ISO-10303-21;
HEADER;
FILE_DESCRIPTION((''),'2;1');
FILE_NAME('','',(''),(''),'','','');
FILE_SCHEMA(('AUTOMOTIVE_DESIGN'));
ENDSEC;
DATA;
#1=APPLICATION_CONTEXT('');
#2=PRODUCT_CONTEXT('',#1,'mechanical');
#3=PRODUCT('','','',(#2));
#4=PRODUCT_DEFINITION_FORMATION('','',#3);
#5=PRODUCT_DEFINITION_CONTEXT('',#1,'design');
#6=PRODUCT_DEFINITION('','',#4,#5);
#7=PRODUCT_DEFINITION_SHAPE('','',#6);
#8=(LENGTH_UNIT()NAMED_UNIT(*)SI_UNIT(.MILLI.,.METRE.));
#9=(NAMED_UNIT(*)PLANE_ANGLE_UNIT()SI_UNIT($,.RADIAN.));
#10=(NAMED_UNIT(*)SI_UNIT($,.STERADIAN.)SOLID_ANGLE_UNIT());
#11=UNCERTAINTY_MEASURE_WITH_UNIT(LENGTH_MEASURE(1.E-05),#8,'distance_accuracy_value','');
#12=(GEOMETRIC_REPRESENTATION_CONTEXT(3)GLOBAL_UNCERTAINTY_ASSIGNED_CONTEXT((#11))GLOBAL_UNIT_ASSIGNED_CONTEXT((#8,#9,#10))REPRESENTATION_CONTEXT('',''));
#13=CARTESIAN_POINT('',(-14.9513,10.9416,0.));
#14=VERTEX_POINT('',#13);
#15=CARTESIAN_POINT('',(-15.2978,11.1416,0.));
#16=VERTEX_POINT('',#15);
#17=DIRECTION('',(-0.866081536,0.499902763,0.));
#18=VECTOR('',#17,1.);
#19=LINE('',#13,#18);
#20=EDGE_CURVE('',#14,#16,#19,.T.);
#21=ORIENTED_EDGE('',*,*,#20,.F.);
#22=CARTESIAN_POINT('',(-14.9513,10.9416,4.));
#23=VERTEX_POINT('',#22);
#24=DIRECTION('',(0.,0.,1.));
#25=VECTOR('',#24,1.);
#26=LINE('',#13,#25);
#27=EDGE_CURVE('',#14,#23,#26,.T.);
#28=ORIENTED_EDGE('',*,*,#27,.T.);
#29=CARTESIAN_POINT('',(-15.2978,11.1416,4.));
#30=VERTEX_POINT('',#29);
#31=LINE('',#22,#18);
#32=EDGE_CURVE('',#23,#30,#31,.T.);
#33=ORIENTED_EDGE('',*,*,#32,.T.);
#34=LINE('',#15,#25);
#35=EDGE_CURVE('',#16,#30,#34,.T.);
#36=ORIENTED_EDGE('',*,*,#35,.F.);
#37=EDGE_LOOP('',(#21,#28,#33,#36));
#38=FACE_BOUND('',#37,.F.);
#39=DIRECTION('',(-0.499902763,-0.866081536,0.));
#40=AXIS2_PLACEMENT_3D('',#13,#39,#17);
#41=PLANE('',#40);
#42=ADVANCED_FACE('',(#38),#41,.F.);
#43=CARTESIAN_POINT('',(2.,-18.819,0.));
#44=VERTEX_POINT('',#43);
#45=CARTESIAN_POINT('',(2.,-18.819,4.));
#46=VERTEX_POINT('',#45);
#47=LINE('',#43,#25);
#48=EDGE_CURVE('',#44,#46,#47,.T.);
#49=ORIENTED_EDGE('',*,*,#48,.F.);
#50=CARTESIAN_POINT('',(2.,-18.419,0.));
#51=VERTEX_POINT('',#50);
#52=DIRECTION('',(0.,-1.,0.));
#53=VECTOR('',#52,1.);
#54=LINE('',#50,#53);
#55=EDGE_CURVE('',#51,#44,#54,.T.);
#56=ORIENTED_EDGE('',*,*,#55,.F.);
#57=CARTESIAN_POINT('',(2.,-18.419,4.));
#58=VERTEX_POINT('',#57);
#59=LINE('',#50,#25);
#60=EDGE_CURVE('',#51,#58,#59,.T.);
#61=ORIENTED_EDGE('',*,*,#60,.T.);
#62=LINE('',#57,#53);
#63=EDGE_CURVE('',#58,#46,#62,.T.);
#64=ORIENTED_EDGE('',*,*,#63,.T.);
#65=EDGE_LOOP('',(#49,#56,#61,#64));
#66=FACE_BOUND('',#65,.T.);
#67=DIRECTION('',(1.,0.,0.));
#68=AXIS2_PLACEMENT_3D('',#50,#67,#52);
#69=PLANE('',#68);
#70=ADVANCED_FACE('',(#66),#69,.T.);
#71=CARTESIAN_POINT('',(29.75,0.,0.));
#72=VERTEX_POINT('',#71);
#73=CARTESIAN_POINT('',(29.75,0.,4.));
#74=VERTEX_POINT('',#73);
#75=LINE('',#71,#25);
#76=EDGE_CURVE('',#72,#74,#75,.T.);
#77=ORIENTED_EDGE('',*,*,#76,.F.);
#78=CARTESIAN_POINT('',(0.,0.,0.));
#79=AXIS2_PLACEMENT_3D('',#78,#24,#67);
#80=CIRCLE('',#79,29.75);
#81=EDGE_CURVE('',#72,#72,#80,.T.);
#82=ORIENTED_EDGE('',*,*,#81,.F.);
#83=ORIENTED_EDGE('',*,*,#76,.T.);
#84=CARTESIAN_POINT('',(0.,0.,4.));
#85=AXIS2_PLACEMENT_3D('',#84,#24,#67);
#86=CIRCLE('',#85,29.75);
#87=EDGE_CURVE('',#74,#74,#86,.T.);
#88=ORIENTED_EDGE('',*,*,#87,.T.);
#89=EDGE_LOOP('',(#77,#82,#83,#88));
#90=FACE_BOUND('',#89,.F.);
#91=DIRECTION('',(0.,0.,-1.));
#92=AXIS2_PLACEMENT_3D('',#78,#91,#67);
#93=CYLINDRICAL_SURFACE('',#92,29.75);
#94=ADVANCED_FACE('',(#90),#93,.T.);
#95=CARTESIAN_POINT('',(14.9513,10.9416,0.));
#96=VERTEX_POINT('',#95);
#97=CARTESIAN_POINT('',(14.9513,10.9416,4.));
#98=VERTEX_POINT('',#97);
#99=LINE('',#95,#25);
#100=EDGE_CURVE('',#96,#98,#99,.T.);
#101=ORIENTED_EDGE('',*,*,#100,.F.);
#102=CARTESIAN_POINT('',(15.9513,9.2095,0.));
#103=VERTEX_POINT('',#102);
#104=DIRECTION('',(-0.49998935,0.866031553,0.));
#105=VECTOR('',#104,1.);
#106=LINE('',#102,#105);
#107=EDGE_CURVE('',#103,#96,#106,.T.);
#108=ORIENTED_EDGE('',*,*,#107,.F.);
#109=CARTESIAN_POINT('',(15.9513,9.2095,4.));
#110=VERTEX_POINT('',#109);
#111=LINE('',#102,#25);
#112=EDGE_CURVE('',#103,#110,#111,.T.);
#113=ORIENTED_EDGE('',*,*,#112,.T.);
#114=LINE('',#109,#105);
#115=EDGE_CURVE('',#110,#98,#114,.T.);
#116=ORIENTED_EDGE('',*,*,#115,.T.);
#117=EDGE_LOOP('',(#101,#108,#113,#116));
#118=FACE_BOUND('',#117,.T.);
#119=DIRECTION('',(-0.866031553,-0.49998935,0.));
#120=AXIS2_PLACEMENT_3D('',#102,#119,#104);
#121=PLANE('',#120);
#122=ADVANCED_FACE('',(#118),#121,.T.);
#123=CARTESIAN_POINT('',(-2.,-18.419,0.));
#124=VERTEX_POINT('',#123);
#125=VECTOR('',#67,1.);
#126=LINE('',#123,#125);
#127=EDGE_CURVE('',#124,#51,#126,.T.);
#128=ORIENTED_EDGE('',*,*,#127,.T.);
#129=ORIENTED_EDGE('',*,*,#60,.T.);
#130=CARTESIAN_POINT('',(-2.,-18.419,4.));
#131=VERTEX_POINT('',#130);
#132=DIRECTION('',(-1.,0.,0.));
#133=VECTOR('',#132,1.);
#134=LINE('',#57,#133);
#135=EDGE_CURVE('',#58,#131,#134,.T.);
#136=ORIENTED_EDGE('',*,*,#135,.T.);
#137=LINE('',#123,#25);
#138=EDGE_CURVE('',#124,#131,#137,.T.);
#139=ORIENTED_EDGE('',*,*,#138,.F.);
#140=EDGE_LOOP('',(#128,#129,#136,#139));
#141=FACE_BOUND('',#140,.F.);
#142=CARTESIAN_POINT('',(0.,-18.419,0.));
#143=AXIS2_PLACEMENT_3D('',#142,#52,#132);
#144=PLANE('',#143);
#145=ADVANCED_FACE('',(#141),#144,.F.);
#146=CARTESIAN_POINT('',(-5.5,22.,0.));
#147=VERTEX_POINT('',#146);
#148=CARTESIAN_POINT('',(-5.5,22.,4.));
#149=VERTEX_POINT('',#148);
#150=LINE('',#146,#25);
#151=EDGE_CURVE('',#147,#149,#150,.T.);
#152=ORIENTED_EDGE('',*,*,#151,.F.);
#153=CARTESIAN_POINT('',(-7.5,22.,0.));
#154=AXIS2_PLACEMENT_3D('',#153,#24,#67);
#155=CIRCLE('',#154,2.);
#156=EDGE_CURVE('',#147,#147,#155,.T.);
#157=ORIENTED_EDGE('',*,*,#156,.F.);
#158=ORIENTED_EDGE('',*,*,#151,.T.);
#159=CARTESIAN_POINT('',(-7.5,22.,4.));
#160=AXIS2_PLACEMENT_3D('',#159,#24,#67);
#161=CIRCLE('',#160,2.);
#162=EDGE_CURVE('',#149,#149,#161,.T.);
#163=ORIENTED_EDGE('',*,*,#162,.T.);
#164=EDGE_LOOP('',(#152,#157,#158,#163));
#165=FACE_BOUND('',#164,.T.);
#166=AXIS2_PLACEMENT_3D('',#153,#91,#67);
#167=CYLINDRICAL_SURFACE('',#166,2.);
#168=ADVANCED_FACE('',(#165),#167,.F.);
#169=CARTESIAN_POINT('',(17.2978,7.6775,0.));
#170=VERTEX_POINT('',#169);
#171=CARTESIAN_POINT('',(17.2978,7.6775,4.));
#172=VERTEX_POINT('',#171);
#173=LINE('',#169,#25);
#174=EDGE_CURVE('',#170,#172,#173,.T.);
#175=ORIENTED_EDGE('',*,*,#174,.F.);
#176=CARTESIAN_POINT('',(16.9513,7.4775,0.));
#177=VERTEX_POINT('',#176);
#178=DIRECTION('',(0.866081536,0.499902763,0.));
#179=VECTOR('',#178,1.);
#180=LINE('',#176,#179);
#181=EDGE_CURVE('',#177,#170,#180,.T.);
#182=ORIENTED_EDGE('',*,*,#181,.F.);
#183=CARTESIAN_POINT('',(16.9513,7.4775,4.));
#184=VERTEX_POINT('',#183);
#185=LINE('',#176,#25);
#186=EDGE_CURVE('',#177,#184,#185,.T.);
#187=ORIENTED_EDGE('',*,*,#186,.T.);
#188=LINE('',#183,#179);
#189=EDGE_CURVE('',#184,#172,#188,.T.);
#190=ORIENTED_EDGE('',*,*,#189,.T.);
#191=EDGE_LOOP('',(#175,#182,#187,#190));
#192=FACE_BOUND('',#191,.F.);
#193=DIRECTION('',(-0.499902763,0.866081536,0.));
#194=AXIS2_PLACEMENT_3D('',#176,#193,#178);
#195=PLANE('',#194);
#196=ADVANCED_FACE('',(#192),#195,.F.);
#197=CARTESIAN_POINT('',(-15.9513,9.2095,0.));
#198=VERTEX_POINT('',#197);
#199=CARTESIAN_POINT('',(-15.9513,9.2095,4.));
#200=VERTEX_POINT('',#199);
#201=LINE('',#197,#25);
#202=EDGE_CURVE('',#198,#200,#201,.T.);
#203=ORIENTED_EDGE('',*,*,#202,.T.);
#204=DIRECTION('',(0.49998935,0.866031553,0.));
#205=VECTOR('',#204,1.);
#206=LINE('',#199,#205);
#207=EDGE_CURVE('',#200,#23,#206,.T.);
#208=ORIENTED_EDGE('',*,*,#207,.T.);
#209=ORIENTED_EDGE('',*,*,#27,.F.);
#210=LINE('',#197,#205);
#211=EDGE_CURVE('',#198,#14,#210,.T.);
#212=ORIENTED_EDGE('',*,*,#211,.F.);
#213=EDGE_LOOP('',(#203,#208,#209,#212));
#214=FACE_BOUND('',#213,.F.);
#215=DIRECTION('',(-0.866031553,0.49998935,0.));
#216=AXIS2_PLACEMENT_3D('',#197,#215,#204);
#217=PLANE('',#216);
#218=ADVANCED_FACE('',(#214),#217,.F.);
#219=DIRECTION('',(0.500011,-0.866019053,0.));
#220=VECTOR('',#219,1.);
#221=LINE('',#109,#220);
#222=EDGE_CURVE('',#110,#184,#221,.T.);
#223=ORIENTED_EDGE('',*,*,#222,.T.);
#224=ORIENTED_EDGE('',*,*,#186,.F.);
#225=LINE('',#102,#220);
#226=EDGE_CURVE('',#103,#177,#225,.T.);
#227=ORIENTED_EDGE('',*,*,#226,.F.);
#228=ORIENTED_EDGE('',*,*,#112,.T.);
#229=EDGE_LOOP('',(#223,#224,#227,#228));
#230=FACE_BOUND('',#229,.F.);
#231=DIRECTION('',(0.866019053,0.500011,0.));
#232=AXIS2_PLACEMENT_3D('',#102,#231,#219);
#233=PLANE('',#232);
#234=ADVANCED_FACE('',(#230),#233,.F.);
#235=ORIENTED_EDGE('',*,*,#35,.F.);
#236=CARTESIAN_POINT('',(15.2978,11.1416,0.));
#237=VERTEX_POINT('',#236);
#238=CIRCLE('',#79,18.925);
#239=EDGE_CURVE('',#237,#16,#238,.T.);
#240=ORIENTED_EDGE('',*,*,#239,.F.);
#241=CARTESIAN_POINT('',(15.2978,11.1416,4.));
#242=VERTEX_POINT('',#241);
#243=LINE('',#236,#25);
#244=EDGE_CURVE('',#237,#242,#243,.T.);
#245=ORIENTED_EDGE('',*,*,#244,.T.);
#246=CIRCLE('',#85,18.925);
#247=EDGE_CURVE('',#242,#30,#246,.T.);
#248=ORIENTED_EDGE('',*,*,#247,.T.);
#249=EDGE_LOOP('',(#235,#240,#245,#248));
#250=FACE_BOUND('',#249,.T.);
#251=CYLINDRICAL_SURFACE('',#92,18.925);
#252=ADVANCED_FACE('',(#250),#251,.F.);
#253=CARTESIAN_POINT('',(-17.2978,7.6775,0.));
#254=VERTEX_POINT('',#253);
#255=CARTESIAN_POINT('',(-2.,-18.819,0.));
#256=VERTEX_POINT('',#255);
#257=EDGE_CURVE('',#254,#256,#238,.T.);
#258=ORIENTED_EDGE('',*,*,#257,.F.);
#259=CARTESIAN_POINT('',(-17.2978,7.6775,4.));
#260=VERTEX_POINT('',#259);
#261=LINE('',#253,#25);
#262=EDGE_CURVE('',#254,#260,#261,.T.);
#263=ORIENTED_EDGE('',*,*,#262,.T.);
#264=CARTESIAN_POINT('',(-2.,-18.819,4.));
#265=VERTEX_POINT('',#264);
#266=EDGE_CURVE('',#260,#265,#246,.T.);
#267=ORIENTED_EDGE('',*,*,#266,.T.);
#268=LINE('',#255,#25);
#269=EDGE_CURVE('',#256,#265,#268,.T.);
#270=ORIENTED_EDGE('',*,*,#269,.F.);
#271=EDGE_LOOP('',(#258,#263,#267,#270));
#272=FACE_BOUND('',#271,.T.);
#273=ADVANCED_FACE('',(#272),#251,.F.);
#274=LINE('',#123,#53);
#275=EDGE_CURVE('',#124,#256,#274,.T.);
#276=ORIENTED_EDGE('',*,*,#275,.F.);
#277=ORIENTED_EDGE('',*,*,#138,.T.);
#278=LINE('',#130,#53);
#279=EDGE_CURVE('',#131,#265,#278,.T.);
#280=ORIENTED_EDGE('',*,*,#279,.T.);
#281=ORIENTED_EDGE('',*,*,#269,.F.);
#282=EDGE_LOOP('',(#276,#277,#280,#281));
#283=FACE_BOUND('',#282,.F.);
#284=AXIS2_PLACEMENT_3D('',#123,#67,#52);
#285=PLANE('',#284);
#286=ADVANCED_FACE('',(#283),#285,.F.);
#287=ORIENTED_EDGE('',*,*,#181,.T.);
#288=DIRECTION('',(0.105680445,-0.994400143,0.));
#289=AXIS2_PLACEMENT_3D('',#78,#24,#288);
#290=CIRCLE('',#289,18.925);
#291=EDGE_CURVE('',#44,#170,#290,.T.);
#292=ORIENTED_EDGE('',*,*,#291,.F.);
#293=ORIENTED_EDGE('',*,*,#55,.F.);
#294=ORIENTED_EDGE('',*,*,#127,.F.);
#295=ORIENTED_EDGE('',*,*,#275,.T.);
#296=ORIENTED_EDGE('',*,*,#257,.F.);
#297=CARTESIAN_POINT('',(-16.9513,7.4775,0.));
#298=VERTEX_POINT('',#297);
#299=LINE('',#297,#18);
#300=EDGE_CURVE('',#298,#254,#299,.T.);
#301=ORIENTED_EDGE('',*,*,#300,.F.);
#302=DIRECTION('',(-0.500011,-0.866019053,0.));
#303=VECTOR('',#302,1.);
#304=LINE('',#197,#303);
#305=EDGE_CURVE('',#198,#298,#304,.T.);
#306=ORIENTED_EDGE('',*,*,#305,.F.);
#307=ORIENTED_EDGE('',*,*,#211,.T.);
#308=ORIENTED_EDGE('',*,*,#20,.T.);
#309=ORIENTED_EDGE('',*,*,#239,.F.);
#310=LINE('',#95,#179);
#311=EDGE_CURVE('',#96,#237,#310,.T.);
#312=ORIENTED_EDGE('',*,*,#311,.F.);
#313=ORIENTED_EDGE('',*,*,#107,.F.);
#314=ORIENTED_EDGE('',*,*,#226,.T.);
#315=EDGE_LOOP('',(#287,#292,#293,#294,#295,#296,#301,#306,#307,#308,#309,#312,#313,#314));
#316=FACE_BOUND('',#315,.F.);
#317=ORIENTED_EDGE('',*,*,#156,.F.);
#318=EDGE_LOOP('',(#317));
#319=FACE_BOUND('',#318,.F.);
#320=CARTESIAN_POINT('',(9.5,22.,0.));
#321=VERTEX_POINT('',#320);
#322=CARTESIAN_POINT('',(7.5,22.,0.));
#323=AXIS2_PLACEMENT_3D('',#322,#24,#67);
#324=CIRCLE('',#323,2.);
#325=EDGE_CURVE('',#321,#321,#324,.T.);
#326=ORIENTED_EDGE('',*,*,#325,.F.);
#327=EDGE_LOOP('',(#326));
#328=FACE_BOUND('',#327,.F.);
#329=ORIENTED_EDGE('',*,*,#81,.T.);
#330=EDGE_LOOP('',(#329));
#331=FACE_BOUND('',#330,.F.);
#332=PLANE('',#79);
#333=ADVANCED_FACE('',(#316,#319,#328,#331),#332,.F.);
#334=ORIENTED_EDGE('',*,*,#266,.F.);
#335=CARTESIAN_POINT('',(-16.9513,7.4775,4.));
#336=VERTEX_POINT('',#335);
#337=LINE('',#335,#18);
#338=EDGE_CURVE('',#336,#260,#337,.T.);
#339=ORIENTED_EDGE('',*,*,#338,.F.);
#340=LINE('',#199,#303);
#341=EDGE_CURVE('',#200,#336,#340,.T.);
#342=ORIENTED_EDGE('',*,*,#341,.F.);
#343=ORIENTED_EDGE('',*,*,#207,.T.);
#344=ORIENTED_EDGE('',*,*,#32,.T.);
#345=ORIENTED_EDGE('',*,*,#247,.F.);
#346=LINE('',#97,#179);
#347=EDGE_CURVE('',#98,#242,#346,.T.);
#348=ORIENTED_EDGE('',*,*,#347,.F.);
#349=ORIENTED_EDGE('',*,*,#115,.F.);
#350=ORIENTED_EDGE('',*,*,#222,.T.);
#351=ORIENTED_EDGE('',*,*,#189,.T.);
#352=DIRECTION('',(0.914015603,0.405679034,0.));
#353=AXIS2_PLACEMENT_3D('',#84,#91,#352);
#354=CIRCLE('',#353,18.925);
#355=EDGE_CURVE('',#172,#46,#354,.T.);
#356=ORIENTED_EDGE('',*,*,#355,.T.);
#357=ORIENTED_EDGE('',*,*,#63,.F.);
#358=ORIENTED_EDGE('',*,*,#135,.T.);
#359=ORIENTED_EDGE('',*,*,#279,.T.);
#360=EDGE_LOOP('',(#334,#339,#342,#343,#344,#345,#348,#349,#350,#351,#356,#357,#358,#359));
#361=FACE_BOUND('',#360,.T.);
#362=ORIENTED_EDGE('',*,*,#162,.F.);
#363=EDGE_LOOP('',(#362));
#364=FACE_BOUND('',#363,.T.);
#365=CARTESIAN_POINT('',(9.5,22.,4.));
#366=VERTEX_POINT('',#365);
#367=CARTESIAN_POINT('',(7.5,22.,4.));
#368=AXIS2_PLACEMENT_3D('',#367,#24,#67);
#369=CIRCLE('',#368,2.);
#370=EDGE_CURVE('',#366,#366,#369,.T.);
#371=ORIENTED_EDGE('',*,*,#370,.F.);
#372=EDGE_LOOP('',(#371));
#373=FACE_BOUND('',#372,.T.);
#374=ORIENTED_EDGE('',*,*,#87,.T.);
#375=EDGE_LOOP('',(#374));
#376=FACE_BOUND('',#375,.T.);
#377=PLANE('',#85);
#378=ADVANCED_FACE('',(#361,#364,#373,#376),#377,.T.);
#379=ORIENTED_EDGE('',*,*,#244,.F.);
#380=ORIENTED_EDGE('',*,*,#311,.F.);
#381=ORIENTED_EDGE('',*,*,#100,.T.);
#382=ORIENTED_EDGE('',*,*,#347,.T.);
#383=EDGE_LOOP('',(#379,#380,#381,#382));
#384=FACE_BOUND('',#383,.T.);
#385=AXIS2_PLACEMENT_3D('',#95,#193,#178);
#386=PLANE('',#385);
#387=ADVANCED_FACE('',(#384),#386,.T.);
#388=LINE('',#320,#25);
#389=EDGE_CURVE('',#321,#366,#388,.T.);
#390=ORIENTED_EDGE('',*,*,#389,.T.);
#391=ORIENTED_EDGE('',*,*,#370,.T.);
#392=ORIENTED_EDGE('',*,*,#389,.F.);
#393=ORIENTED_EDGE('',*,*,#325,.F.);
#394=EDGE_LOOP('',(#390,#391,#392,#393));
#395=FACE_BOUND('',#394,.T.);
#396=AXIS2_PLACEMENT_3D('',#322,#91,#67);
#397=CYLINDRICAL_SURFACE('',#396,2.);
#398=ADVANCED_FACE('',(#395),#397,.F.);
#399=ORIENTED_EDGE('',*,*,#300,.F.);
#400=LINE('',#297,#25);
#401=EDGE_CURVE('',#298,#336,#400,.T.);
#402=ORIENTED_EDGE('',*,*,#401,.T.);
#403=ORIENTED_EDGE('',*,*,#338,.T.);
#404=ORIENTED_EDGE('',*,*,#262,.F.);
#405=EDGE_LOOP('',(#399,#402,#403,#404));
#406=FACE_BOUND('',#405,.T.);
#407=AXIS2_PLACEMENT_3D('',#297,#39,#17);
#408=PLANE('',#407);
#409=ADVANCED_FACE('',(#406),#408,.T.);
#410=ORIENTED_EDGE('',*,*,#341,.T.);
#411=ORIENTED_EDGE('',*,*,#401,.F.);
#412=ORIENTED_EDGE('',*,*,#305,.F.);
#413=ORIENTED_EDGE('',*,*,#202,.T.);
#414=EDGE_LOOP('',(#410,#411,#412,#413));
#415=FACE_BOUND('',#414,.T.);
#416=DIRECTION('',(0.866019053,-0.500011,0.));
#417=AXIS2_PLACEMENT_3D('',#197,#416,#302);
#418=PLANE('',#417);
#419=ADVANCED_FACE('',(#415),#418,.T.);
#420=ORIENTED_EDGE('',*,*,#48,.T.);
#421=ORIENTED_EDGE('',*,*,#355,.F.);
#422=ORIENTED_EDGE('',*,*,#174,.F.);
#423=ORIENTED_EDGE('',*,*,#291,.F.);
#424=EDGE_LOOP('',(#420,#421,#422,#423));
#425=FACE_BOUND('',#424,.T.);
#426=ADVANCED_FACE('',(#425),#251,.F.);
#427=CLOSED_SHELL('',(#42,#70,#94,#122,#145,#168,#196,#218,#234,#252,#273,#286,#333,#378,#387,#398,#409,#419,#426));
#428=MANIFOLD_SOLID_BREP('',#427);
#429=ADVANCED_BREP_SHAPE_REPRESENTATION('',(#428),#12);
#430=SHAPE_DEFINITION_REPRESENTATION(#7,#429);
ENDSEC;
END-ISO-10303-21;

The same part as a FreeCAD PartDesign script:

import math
import FreeCAD as App
import Part
import Sketcher

V = App.Vector

doc = App.newDocument("Part")
body = doc.addObject("PartDesign::Body", "Body")

# Sketch on XY plane
sketch1 = body.newObject("Sketcher::SketchObject", "Sketch")
sketch1.AttachmentSupport = (doc.getObject("XY_Plane"), [""])
sketch1.MapMode = "FlatFace"
sketch1.addGeometry(Part.Circle(V(0, 0, 0), V(0, 0, 1), 29.75), False)
sketch1.addGeometry(Part.ArcOfCircle(Part.Circle(V(0, 0, 0), V(0, 0, 1), 18.93), math.radians(-84), math.radians(24)), False)
sketch1.addGeometry(Part.LineSegment(V(2, -18.82, 0), V(2, -18.42, 0)), False)
sketch1.addGeometry(Part.LineSegment(V(2, -18.42, 0), V(-2, -18.42, 0)), False)
sketch1.addGeometry(Part.LineSegment(V(-2, -18.42, 0), V(-2, -18.82, 0)), False)
sketch1.addGeometry(Part.ArcOfCircle(Part.Circle(V(0, 0, 0), V(0, 0, 1), 18.93), math.radians(156), math.radians(264)), False)
sketch1.addGeometry(Part.LineSegment(V(-17.3, 7.68, 0), V(-16.95, 7.48, 0)), False)
sketch1.addGeometry(Part.LineSegment(V(-16.95, 7.48, 0), V(-15.95, 9.21, 0)), False)
sketch1.addGeometry(Part.LineSegment(V(-15.95, 9.21, 0), V(-14.95, 10.94, 0)), False)
sketch1.addGeometry(Part.LineSegment(V(-14.95, 10.94, 0), V(-15.3, 11.14, 0)), False)
sketch1.addGeometry(Part.ArcOfCircle(Part.Circle(V(0, 0, 0), V(0, 0, 1), 18.93), math.radians(36), math.radians(144)), False)
sketch1.addGeometry(Part.LineSegment(V(15.3, 11.14, 0), V(14.95, 10.94, 0)), False)
sketch1.addGeometry(Part.LineSegment(V(14.95, 10.94, 0), V(15.95, 9.21, 0)), False)
sketch1.addGeometry(Part.LineSegment(V(15.95, 9.21, 0), V(16.95, 7.48, 0)), False)
sketch1.addGeometry(Part.LineSegment(V(16.95, 7.48, 0), V(17.3, 7.68, 0)), False)
sketch1.addConstraint(Sketcher.Constraint("Coincident", 1, 1, 2, 1))
sketch1.addConstraint(Sketcher.Constraint("Coincident", 2, 2, 3, 1))
sketch1.addConstraint(Sketcher.Constraint("Coincident", 3, 2, 4, 1))
sketch1.addConstraint(Sketcher.Constraint("Coincident", 4, 2, 5, 2))
sketch1.addConstraint(Sketcher.Constraint("Coincident", 5, 1, 6, 1))
sketch1.addConstraint(Sketcher.Constraint("Coincident", 6, 2, 7, 1))
sketch1.addConstraint(Sketcher.Constraint("Coincident", 7, 2, 8, 1))
sketch1.addConstraint(Sketcher.Constraint("Coincident", 8, 2, 9, 1))
sketch1.addConstraint(Sketcher.Constraint("Coincident", 9, 2, 10, 2))
sketch1.addConstraint(Sketcher.Constraint("Coincident", 10, 1, 11, 1))
sketch1.addConstraint(Sketcher.Constraint("Coincident", 11, 2, 12, 1))
sketch1.addConstraint(Sketcher.Constraint("Coincident", 12, 2, 13, 1))
sketch1.addConstraint(Sketcher.Constraint("Coincident", 13, 2, 14, 1))
sketch1.addConstraint(Sketcher.Constraint("Coincident", 14, 2, 1, 2))
sketch1.addConstraint(Sketcher.Constraint("Vertical", 2))
sketch1.addConstraint(Sketcher.Constraint("Horizontal", 3))
sketch1.addConstraint(Sketcher.Constraint("Vertical", 4))
sketch1.addConstraint(Sketcher.Constraint("Coincident", 0, 3, -1, 1))
sketch1.addConstraint(Sketcher.Constraint("Coincident", 1, 3, -1, 1))
sketch1.addConstraint(Sketcher.Constraint("Coincident", 5, 3, -1, 1))
sketch1.addConstraint(Sketcher.Constraint("Coincident", 10, 3, -1, 1))
sketch1.addConstraint(Sketcher.Constraint("Equal", 1, 5))
sketch1.addConstraint(Sketcher.Constraint("Equal", 5, 10))
sketch1.addConstraint(Sketcher.Constraint("Symmetric", 8, 2, 11, 2, -2))
sketch1.addConstraint(Sketcher.Constraint("Symmetric", 7, 2, 12, 2, -2))
sketch1.addConstraint(Sketcher.Constraint("Symmetric", 6, 2, 13, 2, -2))
sketch1.addConstraint(Sketcher.Constraint("Perpendicular", 6, 7))
sketch1.addConstraint(Sketcher.Constraint("Parallel", 7, 8))
sketch1.addConstraint(Sketcher.Constraint("Perpendicular", 8, 9))
sketch1.addConstraint(Sketcher.Constraint("Perpendicular", 11, 12))
sketch1.addConstraint(Sketcher.Constraint("Perpendicular", 13, 14))
sketch1.addConstraint(Sketcher.Constraint("Horizontal", 1, 1, 4, 2))
sketch1.addConstraint(Sketcher.Constraint("Equal", 7, 8))
sketch1.addConstraint(Sketcher.Constraint("Equal", 6, 9))
sketch1.addConstraint(Sketcher.Constraint("Diameter", 0, 59.5))
sketch1.addConstraint(Sketcher.Constraint("DistanceX", 3, 2, 3, 1, 4.0))
sketch1.addConstraint(Sketcher.Constraint("Distance", 7, 2.0))
sketch1.addConstraint(Sketcher.Constraint("DistanceY", 2, 1, 2, 2, 0.4))
sketch1.addConstraint(Sketcher.Constraint("Radius", 1, 18.925))
sketch1.addConstraint(Sketcher.Constraint("DistanceX", 6, 2, 8, 2, 2.0))
sketch1.addConstraint(Sketcher.Constraint("Distance", 6, 0.4))
pad1 = body.newObject("PartDesign::Pad", "Pad")
pad1.Profile = sketch1
pad1.Length = 4

# Sketch on XY plane
sketch2 = body.newObject("Sketcher::SketchObject", "Sketch001")
sketch2.AttachmentSupport = (doc.getObject("XY_Plane"), [""])
sketch2.MapMode = "FlatFace"
sketch2.addGeometry(Part.Circle(V(-7.5, 22, 0), V(0, 0, 1), 2), False)
sketch2.addGeometry(Part.Circle(V(7.5, 22, 0), V(0, 0, 1), 2), False)
sketch2.addConstraint(Sketcher.Constraint("Equal", 0, 1))
sketch2.addConstraint(Sketcher.Constraint("Symmetric", 0, 3, 1, 3, -2))
sketch2.addConstraint(Sketcher.Constraint("Diameter", 0, 4.0))
sketch2.addConstraint(Sketcher.Constraint("DistanceX", 0, 3, -1, 1, 7.5))
sketch2.addConstraint(Sketcher.Constraint("DistanceY", -1, 1, 0, 3, 22.0))
pocket1 = body.newObject("PartDesign::Pocket", "Pocket")
pocket1.Profile = sketch2
pocket1.Length = 4
pocket1.Reversed = True

doc.recompute()
